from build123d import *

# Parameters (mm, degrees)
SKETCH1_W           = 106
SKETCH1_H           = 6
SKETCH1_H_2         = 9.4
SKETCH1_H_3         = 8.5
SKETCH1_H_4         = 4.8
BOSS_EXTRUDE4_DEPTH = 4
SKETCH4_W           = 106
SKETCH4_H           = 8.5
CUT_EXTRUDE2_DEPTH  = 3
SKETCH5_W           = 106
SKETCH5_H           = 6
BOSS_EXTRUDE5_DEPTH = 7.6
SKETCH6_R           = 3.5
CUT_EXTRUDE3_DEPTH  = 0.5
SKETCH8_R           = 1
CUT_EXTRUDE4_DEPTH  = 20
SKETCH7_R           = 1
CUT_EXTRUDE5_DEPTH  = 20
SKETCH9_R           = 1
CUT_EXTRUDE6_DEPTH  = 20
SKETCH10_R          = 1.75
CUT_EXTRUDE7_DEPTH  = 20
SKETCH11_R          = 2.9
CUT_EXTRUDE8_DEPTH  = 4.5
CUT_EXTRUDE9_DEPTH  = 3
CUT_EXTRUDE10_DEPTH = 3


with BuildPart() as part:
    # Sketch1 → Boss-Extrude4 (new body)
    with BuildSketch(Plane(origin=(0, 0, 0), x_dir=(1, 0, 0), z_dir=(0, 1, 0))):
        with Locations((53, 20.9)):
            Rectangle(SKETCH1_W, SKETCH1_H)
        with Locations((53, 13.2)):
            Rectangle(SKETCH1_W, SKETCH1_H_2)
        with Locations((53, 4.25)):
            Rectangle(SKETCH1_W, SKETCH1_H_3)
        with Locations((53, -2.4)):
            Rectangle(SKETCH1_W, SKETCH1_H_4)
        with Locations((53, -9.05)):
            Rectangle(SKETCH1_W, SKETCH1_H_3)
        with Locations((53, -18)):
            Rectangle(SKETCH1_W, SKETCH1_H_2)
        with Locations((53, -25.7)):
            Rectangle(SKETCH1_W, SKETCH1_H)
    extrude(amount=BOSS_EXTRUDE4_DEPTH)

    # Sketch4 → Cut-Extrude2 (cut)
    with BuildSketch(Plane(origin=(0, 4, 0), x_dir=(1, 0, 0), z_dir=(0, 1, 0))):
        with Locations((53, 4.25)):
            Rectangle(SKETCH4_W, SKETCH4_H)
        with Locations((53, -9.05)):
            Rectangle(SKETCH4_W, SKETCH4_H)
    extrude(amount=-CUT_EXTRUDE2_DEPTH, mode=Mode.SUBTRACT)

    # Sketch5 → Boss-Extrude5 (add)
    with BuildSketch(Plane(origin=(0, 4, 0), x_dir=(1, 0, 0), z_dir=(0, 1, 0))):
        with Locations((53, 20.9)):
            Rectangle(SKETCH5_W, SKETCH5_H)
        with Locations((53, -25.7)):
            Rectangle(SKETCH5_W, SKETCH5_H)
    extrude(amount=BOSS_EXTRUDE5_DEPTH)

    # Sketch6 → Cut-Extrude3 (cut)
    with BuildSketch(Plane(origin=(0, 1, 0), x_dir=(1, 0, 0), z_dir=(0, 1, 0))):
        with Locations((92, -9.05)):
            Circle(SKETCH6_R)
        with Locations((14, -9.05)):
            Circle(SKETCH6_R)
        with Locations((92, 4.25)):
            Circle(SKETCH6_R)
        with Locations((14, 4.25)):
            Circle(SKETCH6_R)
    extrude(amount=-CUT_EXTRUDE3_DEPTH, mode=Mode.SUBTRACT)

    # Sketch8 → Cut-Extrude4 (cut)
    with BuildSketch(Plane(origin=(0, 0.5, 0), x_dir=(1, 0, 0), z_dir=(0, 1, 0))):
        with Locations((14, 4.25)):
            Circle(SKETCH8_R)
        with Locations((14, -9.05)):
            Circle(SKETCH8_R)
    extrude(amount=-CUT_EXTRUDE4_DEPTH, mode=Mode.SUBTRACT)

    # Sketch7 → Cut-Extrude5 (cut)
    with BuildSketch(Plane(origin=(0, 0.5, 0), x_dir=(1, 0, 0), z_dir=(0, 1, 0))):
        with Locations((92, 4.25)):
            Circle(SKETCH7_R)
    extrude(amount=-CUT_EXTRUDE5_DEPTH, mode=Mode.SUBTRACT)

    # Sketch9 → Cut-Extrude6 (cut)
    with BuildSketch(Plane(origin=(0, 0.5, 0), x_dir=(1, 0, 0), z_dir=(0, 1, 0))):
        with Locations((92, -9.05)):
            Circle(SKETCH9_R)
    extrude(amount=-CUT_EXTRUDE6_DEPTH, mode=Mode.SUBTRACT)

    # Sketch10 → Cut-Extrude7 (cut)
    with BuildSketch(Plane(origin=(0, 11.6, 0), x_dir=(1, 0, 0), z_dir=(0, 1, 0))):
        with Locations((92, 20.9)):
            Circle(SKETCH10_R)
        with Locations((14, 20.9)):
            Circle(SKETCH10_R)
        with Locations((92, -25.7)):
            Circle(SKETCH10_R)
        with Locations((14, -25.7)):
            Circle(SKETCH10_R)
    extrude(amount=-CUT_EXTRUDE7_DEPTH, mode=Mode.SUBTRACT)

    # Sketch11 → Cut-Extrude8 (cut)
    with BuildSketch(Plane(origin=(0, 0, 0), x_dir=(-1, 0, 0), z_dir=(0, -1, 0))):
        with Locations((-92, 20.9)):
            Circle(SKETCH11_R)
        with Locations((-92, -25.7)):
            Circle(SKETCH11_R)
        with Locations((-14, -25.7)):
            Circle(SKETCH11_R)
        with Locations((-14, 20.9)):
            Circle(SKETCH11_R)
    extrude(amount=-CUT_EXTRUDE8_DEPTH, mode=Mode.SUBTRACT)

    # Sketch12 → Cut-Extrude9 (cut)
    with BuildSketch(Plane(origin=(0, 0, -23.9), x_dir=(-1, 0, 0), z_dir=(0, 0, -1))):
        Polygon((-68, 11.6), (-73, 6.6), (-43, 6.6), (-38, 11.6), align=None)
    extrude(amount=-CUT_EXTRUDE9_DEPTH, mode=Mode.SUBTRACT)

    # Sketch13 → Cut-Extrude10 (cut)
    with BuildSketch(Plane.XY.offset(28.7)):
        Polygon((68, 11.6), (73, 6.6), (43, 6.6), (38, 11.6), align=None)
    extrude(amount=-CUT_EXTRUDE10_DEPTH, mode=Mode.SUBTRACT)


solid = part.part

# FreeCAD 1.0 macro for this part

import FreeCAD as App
import Part
import Sketcher

V = App.Vector
Q = App.Units.Quantity

doc = App.newDocument("Part")
params = doc.addObject("Spreadsheet::Sheet", "Params")
for row, (alias, value) in enumerate([
    ("sketch1_width", "106 mm"),
    ("sketch1_height", "52.6 mm"),
    ("pad1_length", "4 mm"),
    ("sketch2_width", "106 mm"),
    ("sketch2_height", "8.5 mm"),
    ("pocket1_length", "3 mm"),
    ("sketch3_width", "106 mm"),
    ("sketch3_height", "6 mm"),
    ("pad2_length", "7.6 mm"),
    ("sketch4_diameter", "7 mm"),
    ("pocket2_length", "0.5 mm"),
    ("sketch5_diameter", "2 mm"),
    ("pocket3_length", "20 mm"),
    ("sketch6_diameter", "2 mm"),
    ("pocket4_length", "20 mm"),
    ("sketch7_diameter", "2 mm"),
    ("pocket5_length", "20 mm"),
    ("sketch8_diameter", "3.5 mm"),
    ("pocket6_length", "20 mm"),
    ("sketch9_diameter", "5.8 mm"),
    ("pocket7_length", "4.5 mm"),
    ("sketch10_width", "30 mm"),
    ("pocket8_length", "3 mm"),
    ("sketch11_width", "30 mm"),
    ("pocket9_length", "3 mm"),
], start=1):
    params.set(f"A{row}", alias)
    params.set(f"B{row}", "=" + value)
    params.setAlias(f"B{row}", alias)

body = doc.addObject("PartDesign::Body", "Body")

sketch1 = body.newObject("Sketcher::SketchObject", "Sketch")
sketch1.AttachmentSupport = (doc.getObject("XZ_Plane"), [""])
sketch1.MapMode = "FlatFace"
sketch1.addGeometry(Part.LineSegment(V(0, -23.9, 0), V(0, 28.7, 0)), False)
sketch1.addGeometry(Part.LineSegment(V(0, 28.7, 0), V(106, 28.7, 0)), False)
sketch1.addGeometry(Part.LineSegment(V(106, 28.7, 0), V(106, -23.9, 0)), False)
sketch1.addGeometry(Part.LineSegment(V(106, -23.9, 0), V(0, -23.9, 0)), False)
sketch1.addConstraint(Sketcher.Constraint("Coincident", 0, 2, 1, 1))
sketch1.addConstraint(Sketcher.Constraint("Coincident", 1, 2, 2, 1))
sketch1.addConstraint(Sketcher.Constraint("Coincident", 2, 2, 3, 1))
sketch1.addConstraint(Sketcher.Constraint("Coincident", 3, 2, 0, 1))
sketch1.addConstraint(Sketcher.Constraint("Vertical", 0))
sketch1.addConstraint(Sketcher.Constraint("Horizontal", 1))
sketch1.addConstraint(Sketcher.Constraint("Vertical", 2))
sketch1.addConstraint(Sketcher.Constraint("Horizontal", 3))
sketch1.addConstraint(Sketcher.Constraint("PointOnObject", 0, 2, -2))
sketch1.addConstraint(Sketcher.Constraint("DistanceX", 1, 1, 1, 2, Q("106 mm")))
sketch1.addConstraint(Sketcher.Constraint("DistanceY", 0, 1, 0, 2, Q("52.6 mm")))
sketch1.addConstraint(Sketcher.Constraint("DistanceY", -1, 1, 0, 2, Q("28.7 mm")))
sketch1.setExpression("Constraints[9]", "Params.sketch1_width")
sketch1.setExpression("Constraints[10]", "Params.sketch1_height")
pad1 = body.newObject("PartDesign::Pad", "Pad")
pad1.Profile = sketch1
pad1.setExpression("Length", "Params.pad1_length")
pad1.Reversed = True

sketch2 = body.newObject("Sketcher::SketchObject", "Sketch001")
sketch2.AttachmentSupport = (doc.getObject("XZ_Plane"), [""])
sketch2.MapMode = "FlatFace"
sketch2.AttachmentOffset = App.Placement(V(0, 0, -4), App.Rotation())
sketch2.addGeometry(Part.LineSegment(V(0, -8.5, 0), V(0, 0, 0)), False)
sketch2.addGeometry(Part.LineSegment(V(0, 0, 0), V(106, 0, 0)), False)
sketch2.addGeometry(Part.LineSegment(V(106, 0, 0), V(106, -8.5, 0)), False)
sketch2.addGeometry(Part.LineSegment(V(106, -8.5, 0), V(0, -8.5, 0)), False)
sketch2.addGeometry(Part.LineSegment(V(0, 4.8, 0), V(0, 13.3, 0)), False)
sketch2.addGeometry(Part.LineSegment(V(0, 13.3, 0), V(106, 13.3, 0)), False)
sketch2.addGeometry(Part.LineSegment(V(106, 13.3, 0), V(106, 4.8, 0)), False)
sketch2.addGeometry(Part.LineSegment(V(106, 4.8, 0), V(0, 4.8, 0)), False)
sketch2.addConstraint(Sketcher.Constraint("Coincident", 0, 2, 1, 1))
sketch2.addConstraint(Sketcher.Constraint("Coincident", 1, 2, 2, 1))
sketch2.addConstraint(Sketcher.Constraint("Coincident", 2, 2, 3, 1))
sketch2.addConstraint(Sketcher.Constraint("Coincident", 3, 2, 0, 1))
sketch2.addConstraint(Sketcher.Constraint("Coincident", 4, 2, 5, 1))
sketch2.addConstraint(Sketcher.Constraint("Coincident", 5, 2, 6, 1))
sketch2.addConstraint(Sketcher.Constraint("Coincident", 6, 2, 7, 1))
sketch2.addConstraint(Sketcher.Constraint("Coincident", 7, 2, 4, 1))
sketch2.addConstraint(Sketcher.Constraint("Vertical", 0))
sketch2.addConstraint(Sketcher.Constraint("Horizontal", 1))
sketch2.addConstraint(Sketcher.Constraint("Vertical", 2))
sketch2.addConstraint(Sketcher.Constraint("Horizontal", 3))
sketch2.addConstraint(Sketcher.Constraint("Vertical", 4))
sketch2.addConstraint(Sketcher.Constraint("Horizontal", 5))
sketch2.addConstraint(Sketcher.Constraint("Vertical", 6))
sketch2.addConstraint(Sketcher.Constraint("Horizontal", 7))
sketch2.addConstraint(Sketcher.Constraint("Coincident", 0, 2, -1, 1))
sketch2.addConstraint(Sketcher.Constraint("PointOnObject", 4, 2, -2))
sketch2.addConstraint(Sketcher.Constraint("Vertical", 2, 2, 5, 2))
sketch2.addConstraint(Sketcher.Constraint("Equal", 2, 4))
sketch2.addConstraint(Sketcher.Constraint("DistanceX", 1, 1, 1, 2, Q("106 mm")))
sketch2.addConstraint(Sketcher.Constraint("DistanceY", 0, 1, 0, 2, Q("8.5 mm")))
sketch2.addConstraint(Sketcher.Constraint("DistanceY", -1, 1, 4, 2, Q("13.3 mm")))
sketch2.setExpression("Constraints[20]", "Params.sketch2_width")
sketch2.setExpression("Constraints[21]", "Params.sketch2_height")
pocket1 = body.newObject("PartDesign::Pocket", "Pocket")
pocket1.Profile = sketch2
pocket1.setExpression("Length", "Params.pocket1_length")
pocket1.Reversed = True

sketch3 = body.newObject("Sketcher::SketchObject", "Sketch002")
sketch3.AttachmentSupport = (doc.getObject("XZ_Plane"), [""])
sketch3.MapMode = "FlatFace"
sketch3.AttachmentOffset = App.Placement(V(0, 0, -4), App.Rotation())
sketch3.addGeometry(Part.LineSegment(V(0, -23.9, 0), V(0, -17.9, 0)), False)
sketch3.addGeometry(Part.LineSegment(V(0, -17.9, 0), V(106, -17.9, 0)), False)
sketch3.addGeometry(Part.LineSegment(V(106, -17.9, 0), V(106, -23.9, 0)), False)
sketch3.addGeometry(Part.LineSegment(V(106, -23.9, 0), V(0, -23.9, 0)), False)
sketch3.addGeometry(Part.LineSegment(V(0, 22.7, 0), V(0, 28.7, 0)), False)
sketch3.addGeometry(Part.LineSegment(V(0, 28.7, 0), V(106, 28.7, 0)), False)
sketch3.addGeometry(Part.LineSegment(V(106, 28.7, 0), V(106, 22.7, 0)), False)
sketch3.addGeometry(Part.LineSegment(V(106, 22.7, 0), V(0, 22.7, 0)), False)
sketch3.addConstraint(Sketcher.Constraint("Coincident", 0, 2, 1, 1))
sketch3.addConstraint(Sketcher.Constraint("Coincident", 1, 2, 2, 1))
sketch3.addConstraint(Sketcher.Constraint("Coincident", 2, 2, 3, 1))
sketch3.addConstraint(Sketcher.Constraint("Coincident", 3, 2, 0, 1))
sketch3.addConstraint(Sketcher.Constraint("Coincident", 4, 2, 5, 1))
sketch3.addConstraint(Sketcher.Constraint("Coincident", 5, 2, 6, 1))
sketch3.addConstraint(Sketcher.Constraint("Coincident", 6, 2, 7, 1))
sketch3.addConstraint(Sketcher.Constraint("Coincident", 7, 2, 4, 1))
sketch3.addConstraint(Sketcher.Constraint("Vertical", 0))
sketch3.addConstraint(Sketcher.Constraint("Horizontal", 1))
sketch3.addConstraint(Sketcher.Constraint("Vertical", 2))
sketch3.addConstraint(Sketcher.Constraint("Horizontal", 3))
sketch3.addConstraint(Sketcher.Constraint("Vertical", 4))
sketch3.addConstraint(Sketcher.Constraint("Horizontal", 5))
sketch3.addConstraint(Sketcher.Constraint("Vertical", 6))
sketch3.addConstraint(Sketcher.Constraint("Horizontal", 7))
sketch3.addConstraint(Sketcher.Constraint("PointOnObject", 0, 2, -2))
sketch3.addConstraint(Sketcher.Constraint("PointOnObject", 4, 2, -2))
sketch3.addConstraint(Sketcher.Constraint("Vertical", 2, 2, 5, 2))
sketch3.addConstraint(Sketcher.Constraint("Equal", 2, 4))
sketch3.addConstraint(Sketcher.Constraint("DistanceX", 1, 1, 1, 2, Q("106 mm")))
sketch3.addConstraint(Sketcher.Constraint("DistanceY", 0, 1, 0, 2, Q("6 mm")))
sketch3.addConstraint(Sketcher.Constraint("DistanceY", 0, 2, -1, 1, Q("17.9 mm")))
sketch3.addConstraint(Sketcher.Constraint("DistanceY", -1, 1, 4, 2, Q("28.7 mm")))
sketch3.setExpression("Constraints[20]", "Params.sketch3_width")
sketch3.setExpression("Constraints[21]", "Params.sketch3_height")
pad2 = body.newObject("PartDesign::Pad", "Pad001")
pad2.Profile = sketch3
pad2.setExpression("Length", "Params.pad2_length")
pad2.Reversed = True

sketch4 = body.newObject("Sketcher::SketchObject", "Sketch003")
sketch4.AttachmentSupport = (doc.getObject("XZ_Plane"), [""])
sketch4.MapMode = "FlatFace"
sketch4.AttachmentOffset = App.Placement(V(0, 0, -1), App.Rotation())
sketch4.addGeometry(Part.Circle(V(92, 9.05, 0), V(0, 0, 1), 3.5), False)
sketch4.addGeometry(Part.Circle(V(14, 9.05, 0), V(0, 0, 1), 3.5), False)
sketch4.addGeometry(Part.Circle(V(92, -4.25, 0), V(0, 0, 1), 3.5), False)
sketch4.addGeometry(Part.Circle(V(14, -4.25, 0), V(0, 0, 1), 3.5), False)
sketch4.addConstraint(Sketcher.Constraint("Equal", 0, 1))
sketch4.addConstraint(Sketcher.Constraint("Equal", 1, 2))
sketch4.addConstraint(Sketcher.Constraint("Equal", 2, 3))
sketch4.addConstraint(Sketcher.Constraint("Horizontal", 0, 3, 1, 3))
sketch4.addConstraint(Sketcher.Constraint("Horizontal", 2, 3, 3, 3))
sketch4.addConstraint(Sketcher.Constraint("Vertical", 0, 3, 2, 3))
sketch4.addConstraint(Sketcher.Constraint("Vertical", 1, 3, 3, 3))
sketch4.addConstraint(Sketcher.Constraint("Diameter", 0, Q("7 mm")))
sketch4.addConstraint(Sketcher.Constraint("DistanceX", -1, 1, 0, 3, Q("92 mm")))
sketch4.addConstraint(Sketcher.Constraint("DistanceX", -1, 1, 1, 3, Q("14 mm")))
sketch4.addConstraint(Sketcher.Constraint("DistanceY", 2, 3, 0, 3, Q("13.3 mm")))
sketch4.addConstraint(Sketcher.Constraint("DistanceY", -1, 1, 0, 3, Q("9.05 mm")))
sketch4.setExpression("Constraints[7]", "Params.sketch4_diameter")
pocket2 = body.newObject("PartDesign::Pocket", "Pocket001")
pocket2.Profile = sketch4
pocket2.setExpression("Length", "Params.pocket2_length")
pocket2.Reversed = True

sketch5 = body.newObject("Sketcher::SketchObject", "Sketch004")
sketch5.AttachmentSupport = (doc.getObject("XZ_Plane"), [""])
sketch5.MapMode = "FlatFace"
sketch5.AttachmentOffset = App.Placement(V(0, 0, -0.5), App.Rotation())
sketch5.addGeometry(Part.Circle(V(14, -4.25, 0), V(0, 0, 1), 1), False)
sketch5.addGeometry(Part.Circle(V(14, 9.05, 0), V(0, 0, 1), 1), False)
sketch5.addConstraint(Sketcher.Constraint("Equal", 0, 1))
sketch5.addConstraint(Sketcher.Constraint("Vertical", 0, 3, 1, 3))
sketch5.addConstraint(Sketcher.Constraint("Diameter", 0, Q("2 mm")))
sketch5.addConstraint(Sketcher.Constraint("DistanceX", -1, 1, 0, 3, Q("14 mm")))
sketch5.addConstraint(Sketcher.Constraint("DistanceY", 0, 3, 1, 3, Q("13.3 mm")))
sketch5.addConstraint(Sketcher.Constraint("DistanceY", 0, 3, -1, 1, Q("4.25 mm")))
sketch5.setExpression("Constraints[2]", "Params.sketch5_diameter")
pocket3 = body.newObject("PartDesign::Pocket", "Pocket002")
pocket3.Profile = sketch5
pocket3.setExpression("Length", "Params.pocket3_length")
pocket3.Reversed = True

sketch6 = body.newObject("Sketcher::SketchObject", "Sketch005")
sketch6.AttachmentSupport = (doc.getObject("XZ_Plane"), [""])
sketch6.MapMode = "FlatFace"
sketch6.AttachmentOffset = App.Placement(V(0, 0, -0.5), App.Rotation())
sketch6.addGeometry(Part.Circle(V(92, -4.25, 0), V(0, 0, 1), 1), False)
sketch6.addConstraint(Sketcher.Constraint("Diameter", 0, Q("2 mm")))
sketch6.addConstraint(Sketcher.Constraint("DistanceX", -1, 1, 0, 3, Q("92 mm")))
sketch6.addConstraint(Sketcher.Constraint("DistanceY", 0, 3, -1, 1, Q("4.25 mm")))
sketch6.setExpression("Constraints[0]", "Params.sketch6_diameter")
pocket4 = body.newObject("PartDesign::Pocket", "Pocket003")
pocket4.Profile = sketch6
pocket4.setExpression("Length", "Params.pocket4_length")
pocket4.Reversed = True

sketch7 = body.newObject("Sketcher::SketchObject", "Sketch006")
sketch7.AttachmentSupport = (doc.getObject("XZ_Plane"), [""])
sketch7.MapMode = "FlatFace"
sketch7.AttachmentOffset = App.Placement(V(0, 0, -0.5), App.Rotation())
sketch7.addGeometry(Part.Circle(V(92, 9.05, 0), V(0, 0, 1), 1), False)
sketch7.addConstraint(Sketcher.Constraint("Diameter", 0, Q("2 mm")))
sketch7.addConstraint(Sketcher.Constraint("DistanceX", -1, 1, 0, 3, Q("92 mm")))
sketch7.addConstraint(Sketcher.Constraint("DistanceY", -1, 1, 0, 3, Q("9.05 mm")))
sketch7.setExpression("Constraints[0]", "Params.sketch7_diameter")
pocket5 = body.newObject("PartDesign::Pocket", "Pocket004")
pocket5.Profile = sketch7
pocket5.setExpression("Length", "Params.pocket5_length")
pocket5.Reversed = True

sketch8 = body.newObject("Sketcher::SketchObject", "Sketch007")
sketch8.AttachmentSupport = (doc.getObject("XZ_Plane"), [""])
sketch8.MapMode = "FlatFace"
sketch8.AttachmentOffset = App.Placement(V(0, 0, -11.6), App.Rotation())
sketch8.addGeometry(Part.Circle(V(92, -20.9, 0), V(0, 0, 1), 1.75), False)
sketch8.addGeometry(Part.Circle(V(14, -20.9, 0), V(0, 0, 1), 1.75), False)
sketch8.addGeometry(Part.Circle(V(92, 25.7, 0), V(0, 0, 1), 1.75), False)
sketch8.addGeometry(Part.Circle(V(14, 25.7, 0), V(0, 0, 1), 1.75), False)
sketch8.addConstraint(Sketcher.Constraint("Equal", 0, 1))
sketch8.addConstraint(Sketcher.Constraint("Equal", 1, 2))
sketch8.addConstraint(Sketcher.Constraint("Equal", 2, 3))
sketch8.addConstraint(Sketcher.Constraint("Horizontal", 0, 3, 1, 3))
sketch8.addConstraint(Sketcher.Constraint("Horizontal", 2, 3, 3, 3))
sketch8.addConstraint(Sketcher.Constraint("Vertical", 0, 3, 2, 3))
sketch8.addConstraint(Sketcher.Constraint("Vertical", 1, 3, 3, 3))
sketch8.addConstraint(Sketcher.Constraint("Diameter", 0, Q("3.5 mm")))
sketch8.addConstraint(Sketcher.Constraint("DistanceX", -1, 1, 0, 3, Q("92 mm")))
sketch8.addConstraint(Sketcher.Constraint("DistanceX", -1, 1, 1, 3, Q("14 mm")))
sketch8.addConstraint(Sketcher.Constraint("DistanceY", 0, 3, -1, 1, Q("20.9 mm")))
sketch8.addConstraint(Sketcher.Constraint("DistanceY", -1, 1, 2, 3, Q("25.7 mm")))
sketch8.setExpression("Constraints[7]", "Params.sketch8_diameter")
pocket6 = body.newObject("PartDesign::Pocket", "Pocket005")
pocket6.Profile = sketch8
pocket6.setExpression("Length", "Params.pocket6_length")
pocket6.Reversed = True

sketch9 = body.newObject("Sketcher::SketchObject", "Sketch008")
sketch9.AttachmentSupport = (doc.getObject("XZ_Plane"), [""])
sketch9.MapMode = "FlatFace"
sketch9.addGeometry(Part.Circle(V(92, -20.9, 0), V(0, 0, 1), 2.9), False)
sketch9.addGeometry(Part.Circle(V(92, 25.7, 0), V(0, 0, 1), 2.9), False)
sketch9.addGeometry(Part.Circle(V(14, 25.7, 0), V(0, 0, 1), 2.9), False)
sketch9.addGeometry(Part.Circle(V(14, -20.9, 0), V(0, 0, 1), 2.9), False)
sketch9.addConstraint(Sketcher.Constraint("Equal", 0, 1))
sketch9.addConstraint(Sketcher.Constraint("Equal", 1, 2))
sketch9.addConstraint(Sketcher.Constraint("Equal", 2, 3))
sketch9.addConstraint(Sketcher.Constraint("Horizontal", 1, 3, 2, 3))
sketch9.addConstraint(Sketcher.Constraint("Horizontal", 0, 3, 3, 3))
sketch9.addConstraint(Sketcher.Constraint("Vertical", 0, 3, 1, 3))
sketch9.addConstraint(Sketcher.Constraint("Vertical", 2, 3, 3, 3))
sketch9.addConstraint(Sketcher.Constraint("Diameter", 0, Q("5.8 mm")))
sketch9.addConstraint(Sketcher.Constraint("DistanceX", -1, 1, 0, 3, Q("92 mm")))
sketch9.addConstraint(Sketcher.Constraint("DistanceX", -1, 1, 2, 3, Q("14 mm")))
sketch9.addConstraint(Sketcher.Constraint("DistanceY", 0, 3, -1, 1, Q("20.9 mm")))
sketch9.addConstraint(Sketcher.Constraint("DistanceY", -1, 1, 1, 3, Q("25.7 mm")))
sketch9.setExpression("Constraints[7]", "Params.sketch9_diameter")
pocket7 = body.newObject("PartDesign::Pocket", "Pocket006")
pocket7.Profile = sketch9
pocket7.setExpression("Length", "Params.pocket7_length")

sketch10 = body.newObject("Sketcher::SketchObject", "Sketch009")
sketch10.AttachmentSupport = (doc.getObject("XY_Plane"), [""])
sketch10.MapMode = "FlatFace"
sketch10.AttachmentOffset = App.Placement(V(0, 0, -23.9), App.Rotation())
sketch10.addGeometry(Part.LineSegment(V(68, 11.6, 0), V(73, 6.6, 0)), False)
sketch10.addGeometry(Part.LineSegment(V(73, 6.6, 0), V(43, 6.6, 0)), False)
sketch10.addGeometry(Part.LineSegment(V(43, 6.6, 0), V(38, 11.6, 0)), False)
sketch10.addGeometry(Part.LineSegment(V(38, 11.6, 0), V(68, 11.6, 0)), False)
sketch10.addConstraint(Sketcher.Constraint("Coincident", 0, 2, 1, 1))
sketch10.addConstraint(Sketcher.Constraint("Coincident", 1, 2, 2, 1))
sketch10.addConstraint(Sketcher.Constraint("Coincident", 2, 2, 3, 1))
sketch10.addConstraint(Sketcher.Constraint("Coincident", 3, 2, 0, 1))
sketch10.addConstraint(Sketcher.Constraint("Horizontal", 1))
sketch10.addConstraint(Sketcher.Constraint("Horizontal", 3))
sketch10.addConstraint(Sketcher.Constraint("Parallel", 0, 2))
sketch10.addConstraint(Sketcher.Constraint("DistanceX", 1, 2, 1, 1, Q("30 mm")))
sketch10.addConstraint(Sketcher.Constraint("Angle", 0, Q("-45 deg")))
sketch10.addConstraint(Sketcher.Constraint("DistanceX", -1, 1, 0, 2, Q("73 mm")))
sketch10.addConstraint(Sketcher.Constraint("DistanceX", -1, 1, 2, 2, Q("38 mm")))
sketch10.addConstraint(Sketcher.Constraint("DistanceY", -1, 1, 0, 2, Q("6.6 mm")))
sketch10.setExpression("Constraints[7]", "Params.sketch10_width")
pocket8 = body.newObject("PartDesign::Pocket", "Pocket007")
pocket8.Profile = sketch10
pocket8.setExpression("Length", "Params.pocket8_length")
pocket8.Reversed = True

sketch11 = body.newObject("Sketcher::SketchObject", "Sketch010")
sketch11.AttachmentSupport = (doc.getObject("XY_Plane"), [""])
sketch11.MapMode = "FlatFace"
sketch11.AttachmentOffset = App.Placement(V(0, 0, 28.7), App.Rotation())
sketch11.addGeometry(Part.LineSegment(V(73, 6.6, 0), V(68, 11.6, 0)), False)
sketch11.addGeometry(Part.LineSegment(V(68, 11.6, 0), V(38, 11.6, 0)), False)
sketch11.addGeometry(Part.LineSegment(V(38, 11.6, 0), V(43, 6.6, 0)), False)
sketch11.addGeometry(Part.LineSegment(V(43, 6.6, 0), V(73, 6.6, 0)), False)
sketch11.addConstraint(Sketcher.Constraint("Coincident", 0, 2, 1, 1))
sketch11.addConstraint(Sketcher.Constraint("Coincident", 1, 2, 2, 1))
sketch11.addConstraint(Sketcher.Constraint("Coincident", 2, 2, 3, 1))
sketch11.addConstraint(Sketcher.Constraint("Coincident", 3, 2, 0, 1))
sketch11.addConstraint(Sketcher.Constraint("Horizontal", 1))
sketch11.addConstraint(Sketcher.Constraint("Horizontal", 3))
sketch11.addConstraint(Sketcher.Constraint("Parallel", 0, 2))
sketch11.addConstraint(Sketcher.Constraint("DistanceX", 1, 2, 1, 1, Q("30 mm")))
sketch11.addConstraint(Sketcher.Constraint("Angle", 0, Q("135 deg")))
sketch11.addConstraint(Sketcher.Constraint("DistanceX", -1, 1, 0, 2, Q("68 mm")))
sketch11.addConstraint(Sketcher.Constraint("DistanceX", -1, 1, 2, 2, Q("43 mm")))
sketch11.addConstraint(Sketcher.Constraint("DistanceY", -1, 1, 0, 2, Q("11.6 mm")))
sketch11.setExpression("Constraints[7]", "Params.sketch11_width")
pocket9 = body.newObject("PartDesign::Pocket", "Pocket008")
pocket9.Profile = sketch11
pocket9.setExpression("Length", "Params.pocket9_length")

doc.recompute()
